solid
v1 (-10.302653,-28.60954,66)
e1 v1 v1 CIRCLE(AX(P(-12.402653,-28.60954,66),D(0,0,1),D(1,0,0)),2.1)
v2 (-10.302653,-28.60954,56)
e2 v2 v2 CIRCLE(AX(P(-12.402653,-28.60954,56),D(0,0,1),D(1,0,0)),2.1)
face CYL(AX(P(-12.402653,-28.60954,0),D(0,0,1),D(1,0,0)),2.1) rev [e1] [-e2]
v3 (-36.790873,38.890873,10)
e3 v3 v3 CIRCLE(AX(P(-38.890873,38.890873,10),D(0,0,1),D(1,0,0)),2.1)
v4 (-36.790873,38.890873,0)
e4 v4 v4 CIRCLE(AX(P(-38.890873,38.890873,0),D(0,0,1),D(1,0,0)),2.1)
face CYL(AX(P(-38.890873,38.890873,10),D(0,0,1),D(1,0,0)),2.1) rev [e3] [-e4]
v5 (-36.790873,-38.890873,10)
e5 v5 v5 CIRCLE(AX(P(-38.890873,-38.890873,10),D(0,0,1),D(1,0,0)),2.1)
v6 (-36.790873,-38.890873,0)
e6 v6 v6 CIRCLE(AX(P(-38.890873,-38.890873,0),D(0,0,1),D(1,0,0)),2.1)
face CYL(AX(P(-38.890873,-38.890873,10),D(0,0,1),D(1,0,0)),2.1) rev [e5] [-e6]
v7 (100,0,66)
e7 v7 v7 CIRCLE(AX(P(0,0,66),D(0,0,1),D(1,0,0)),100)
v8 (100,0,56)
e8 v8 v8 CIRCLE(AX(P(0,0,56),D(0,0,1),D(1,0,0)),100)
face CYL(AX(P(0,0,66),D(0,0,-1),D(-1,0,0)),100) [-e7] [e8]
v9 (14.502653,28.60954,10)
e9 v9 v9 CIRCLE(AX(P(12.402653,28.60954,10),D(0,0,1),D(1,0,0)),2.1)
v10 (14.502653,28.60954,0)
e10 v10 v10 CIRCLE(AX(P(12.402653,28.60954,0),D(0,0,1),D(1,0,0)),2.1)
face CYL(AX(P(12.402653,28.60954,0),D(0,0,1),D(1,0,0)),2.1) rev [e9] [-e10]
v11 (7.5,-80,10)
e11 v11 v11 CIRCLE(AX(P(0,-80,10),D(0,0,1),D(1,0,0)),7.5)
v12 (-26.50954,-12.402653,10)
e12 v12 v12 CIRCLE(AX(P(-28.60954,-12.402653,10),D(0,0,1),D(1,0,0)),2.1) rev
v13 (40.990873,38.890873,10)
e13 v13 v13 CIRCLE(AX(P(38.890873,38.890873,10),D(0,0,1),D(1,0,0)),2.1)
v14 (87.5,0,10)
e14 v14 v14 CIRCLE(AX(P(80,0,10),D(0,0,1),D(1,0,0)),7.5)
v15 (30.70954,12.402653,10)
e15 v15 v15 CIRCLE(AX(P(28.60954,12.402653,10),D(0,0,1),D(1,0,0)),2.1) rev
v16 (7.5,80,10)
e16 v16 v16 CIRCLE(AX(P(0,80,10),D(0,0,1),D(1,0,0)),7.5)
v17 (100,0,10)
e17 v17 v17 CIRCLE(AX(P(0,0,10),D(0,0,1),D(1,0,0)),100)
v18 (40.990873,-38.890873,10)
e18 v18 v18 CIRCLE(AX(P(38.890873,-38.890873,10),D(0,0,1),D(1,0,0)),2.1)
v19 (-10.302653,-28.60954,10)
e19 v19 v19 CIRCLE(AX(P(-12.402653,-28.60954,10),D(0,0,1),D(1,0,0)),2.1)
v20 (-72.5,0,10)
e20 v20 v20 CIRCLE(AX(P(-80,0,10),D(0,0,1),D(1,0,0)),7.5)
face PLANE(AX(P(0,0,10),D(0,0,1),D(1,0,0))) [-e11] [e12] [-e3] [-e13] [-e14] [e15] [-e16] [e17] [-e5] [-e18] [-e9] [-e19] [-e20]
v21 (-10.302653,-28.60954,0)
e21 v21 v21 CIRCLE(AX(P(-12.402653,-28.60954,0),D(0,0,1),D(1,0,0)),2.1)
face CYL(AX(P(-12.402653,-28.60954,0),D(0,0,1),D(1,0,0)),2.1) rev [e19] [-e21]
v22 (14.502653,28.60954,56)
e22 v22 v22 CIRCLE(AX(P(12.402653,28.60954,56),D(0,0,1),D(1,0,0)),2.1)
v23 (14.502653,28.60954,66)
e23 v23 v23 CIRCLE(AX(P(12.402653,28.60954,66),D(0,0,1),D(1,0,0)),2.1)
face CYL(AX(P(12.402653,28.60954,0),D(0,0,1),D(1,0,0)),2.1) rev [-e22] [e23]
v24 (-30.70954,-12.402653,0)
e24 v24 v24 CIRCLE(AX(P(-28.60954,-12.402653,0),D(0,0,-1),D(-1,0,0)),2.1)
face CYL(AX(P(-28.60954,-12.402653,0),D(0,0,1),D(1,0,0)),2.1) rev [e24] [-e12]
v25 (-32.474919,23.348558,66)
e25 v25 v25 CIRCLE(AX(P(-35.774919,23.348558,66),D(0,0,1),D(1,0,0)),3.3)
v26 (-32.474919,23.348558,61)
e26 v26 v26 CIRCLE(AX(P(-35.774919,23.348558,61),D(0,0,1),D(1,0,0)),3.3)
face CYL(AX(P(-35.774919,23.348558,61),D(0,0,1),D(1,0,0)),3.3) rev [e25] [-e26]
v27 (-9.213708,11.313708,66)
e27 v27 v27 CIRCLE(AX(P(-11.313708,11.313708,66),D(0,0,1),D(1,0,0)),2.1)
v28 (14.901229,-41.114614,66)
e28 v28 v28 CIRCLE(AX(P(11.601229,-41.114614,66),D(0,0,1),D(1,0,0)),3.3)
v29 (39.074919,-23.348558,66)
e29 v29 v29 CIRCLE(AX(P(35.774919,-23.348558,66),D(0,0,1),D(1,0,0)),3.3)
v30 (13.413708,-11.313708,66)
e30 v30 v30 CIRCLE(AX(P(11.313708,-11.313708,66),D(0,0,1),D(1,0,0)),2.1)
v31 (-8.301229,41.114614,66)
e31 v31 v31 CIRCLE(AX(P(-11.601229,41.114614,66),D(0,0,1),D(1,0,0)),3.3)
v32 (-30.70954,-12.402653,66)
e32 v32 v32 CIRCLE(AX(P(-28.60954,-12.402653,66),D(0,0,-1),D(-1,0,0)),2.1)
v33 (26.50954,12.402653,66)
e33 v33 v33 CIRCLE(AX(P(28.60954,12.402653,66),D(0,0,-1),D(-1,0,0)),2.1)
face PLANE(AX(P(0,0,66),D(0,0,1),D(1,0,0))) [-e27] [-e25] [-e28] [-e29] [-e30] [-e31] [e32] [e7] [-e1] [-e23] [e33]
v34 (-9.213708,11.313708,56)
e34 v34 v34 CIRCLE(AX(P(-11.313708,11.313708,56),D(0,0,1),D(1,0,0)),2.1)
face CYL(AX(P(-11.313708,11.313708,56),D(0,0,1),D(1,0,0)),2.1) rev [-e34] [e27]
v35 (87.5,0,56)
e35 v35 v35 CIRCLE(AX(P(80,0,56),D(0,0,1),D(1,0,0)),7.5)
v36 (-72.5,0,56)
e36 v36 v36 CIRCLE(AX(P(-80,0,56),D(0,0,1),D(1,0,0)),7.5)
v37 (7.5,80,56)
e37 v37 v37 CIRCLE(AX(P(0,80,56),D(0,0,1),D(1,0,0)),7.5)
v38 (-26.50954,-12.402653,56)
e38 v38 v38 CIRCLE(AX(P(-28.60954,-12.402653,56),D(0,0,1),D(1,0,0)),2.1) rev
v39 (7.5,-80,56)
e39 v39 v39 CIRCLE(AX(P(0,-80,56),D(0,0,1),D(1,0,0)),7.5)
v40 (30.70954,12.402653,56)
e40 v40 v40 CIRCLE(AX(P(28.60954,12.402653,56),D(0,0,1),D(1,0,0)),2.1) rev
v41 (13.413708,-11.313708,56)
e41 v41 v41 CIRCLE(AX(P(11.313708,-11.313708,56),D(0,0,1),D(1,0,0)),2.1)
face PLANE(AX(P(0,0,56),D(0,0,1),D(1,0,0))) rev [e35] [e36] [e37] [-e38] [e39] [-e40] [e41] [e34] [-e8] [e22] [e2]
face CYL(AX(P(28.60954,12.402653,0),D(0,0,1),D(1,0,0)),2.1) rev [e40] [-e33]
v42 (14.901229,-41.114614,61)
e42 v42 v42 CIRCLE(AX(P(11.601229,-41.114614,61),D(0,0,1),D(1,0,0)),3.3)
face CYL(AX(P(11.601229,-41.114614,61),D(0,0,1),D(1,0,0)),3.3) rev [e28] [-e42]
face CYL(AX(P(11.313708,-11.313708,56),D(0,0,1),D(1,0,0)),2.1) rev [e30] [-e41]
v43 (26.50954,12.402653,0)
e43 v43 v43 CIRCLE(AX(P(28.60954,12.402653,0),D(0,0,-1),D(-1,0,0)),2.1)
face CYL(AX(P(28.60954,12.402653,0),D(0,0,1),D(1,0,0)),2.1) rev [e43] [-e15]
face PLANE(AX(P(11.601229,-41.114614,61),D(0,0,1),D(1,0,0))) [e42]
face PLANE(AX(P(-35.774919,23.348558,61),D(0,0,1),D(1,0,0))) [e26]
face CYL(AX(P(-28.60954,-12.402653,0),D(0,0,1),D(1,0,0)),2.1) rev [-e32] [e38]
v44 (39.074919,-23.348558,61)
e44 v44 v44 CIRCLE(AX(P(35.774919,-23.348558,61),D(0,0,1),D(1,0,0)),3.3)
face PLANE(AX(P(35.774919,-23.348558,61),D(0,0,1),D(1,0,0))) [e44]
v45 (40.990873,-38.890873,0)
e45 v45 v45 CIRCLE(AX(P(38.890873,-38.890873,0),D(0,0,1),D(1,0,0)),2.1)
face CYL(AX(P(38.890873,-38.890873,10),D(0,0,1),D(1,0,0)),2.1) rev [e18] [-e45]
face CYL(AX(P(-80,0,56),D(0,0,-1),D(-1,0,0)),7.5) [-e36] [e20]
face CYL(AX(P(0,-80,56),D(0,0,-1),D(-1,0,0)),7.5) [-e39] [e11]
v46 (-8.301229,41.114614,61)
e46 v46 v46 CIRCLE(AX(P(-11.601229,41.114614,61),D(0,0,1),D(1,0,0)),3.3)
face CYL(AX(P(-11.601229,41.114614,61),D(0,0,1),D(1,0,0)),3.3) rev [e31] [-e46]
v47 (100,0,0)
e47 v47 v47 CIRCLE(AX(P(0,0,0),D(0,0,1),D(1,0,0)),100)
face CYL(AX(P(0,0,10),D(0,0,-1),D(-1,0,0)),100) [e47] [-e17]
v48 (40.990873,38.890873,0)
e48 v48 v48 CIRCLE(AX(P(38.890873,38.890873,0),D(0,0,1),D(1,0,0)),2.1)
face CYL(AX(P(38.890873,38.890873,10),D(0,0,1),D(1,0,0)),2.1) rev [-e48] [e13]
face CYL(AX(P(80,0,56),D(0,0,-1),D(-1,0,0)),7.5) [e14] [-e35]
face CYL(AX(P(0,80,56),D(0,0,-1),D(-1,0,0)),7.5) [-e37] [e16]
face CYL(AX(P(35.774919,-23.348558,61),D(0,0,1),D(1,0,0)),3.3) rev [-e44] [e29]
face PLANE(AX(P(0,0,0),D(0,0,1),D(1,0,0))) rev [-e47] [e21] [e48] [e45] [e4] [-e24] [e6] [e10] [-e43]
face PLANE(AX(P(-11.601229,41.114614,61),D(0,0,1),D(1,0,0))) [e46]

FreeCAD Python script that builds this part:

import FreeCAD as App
import Part
import Sketcher

V = App.Vector
Q = App.Units.Quantity

doc = App.newDocument("Part")
body = doc.addObject("PartDesign::Body", "Body")

sketch1 = doc.addObject("Sketcher::SketchObject", "Sketch")
body.addObject(sketch1)
sketch1.AttachmentSupport = (doc.XY_Plane, [""])
sketch1.MapMode = "FlatFace"
sketch1.addGeometry(Part.Circle(V(0, 0, 0), V(0, 0, 1), 100), False)
sketch1.addConstraint(Sketcher.Constraint("Coincident", 0, 3, -1, 1))
sketch1.addConstraint(Sketcher.Constraint("Diameter", 0, Q("200 mm")))
pad1 = doc.addObject("PartDesign::Pad", "Pad")
body.addObject(pad1)
pad1.Profile = sketch1
pad1.Length = 10

sketch2 = doc.addObject("Sketcher::SketchObject", "Sketch001")
body.addObject(sketch2)
sketch2.AttachmentSupport = (doc.XY_Plane, [""])
sketch2.MapMode = "FlatFace"
sketch2.AttachmentOffset = App.Placement(V(0, 0, 10), App.Rotation())
sketch2.addGeometry(Part.Circle(V(-80, 0, 0), V(0, 0, 1), 8), False)
sketch2.addGeometry(Part.Circle(V(0, 80, 0), V(0, 0, 1), 8), False)
sketch2.addGeometry(Part.Circle(V(80, 0, 0), V(0, 0, 1), 8), False)
sketch2.addGeometry(Part.Circle(V(0, -80, 0), V(0, 0, 1), 8), False)
sketch2.addConstraint(Sketcher.Constraint("Equal", 0, 1))
sketch2.addConstraint(Sketcher.Constraint("Equal", 1, 2))
sketch2.addConstraint(Sketcher.Constraint("Equal", 2, 3))
sketch2.addConstraint(Sketcher.Constraint("Symmetric", 0, 3, 2, 3, -1, 1))
sketch2.addConstraint(Sketcher.Constraint("Symmetric", 1, 3, 3, 3, -1, 1))
sketch2.addConstraint(Sketcher.Constraint("PointOnObject", 0, 3, -1))
sketch2.addConstraint(Sketcher.Constraint("PointOnObject", 1, 3, -2))
sketch2.addConstraint(Sketcher.Constraint("Diameter", 0, Q("15 mm")))
sketch2.addConstraint(Sketcher.Constraint("DistanceX", 0, 3, -1, 1, Q("80 mm")))
sketch2.addConstraint(Sketcher.Constraint("DistanceY", -1, 1, 1, 3, Q("80 mm")))
pad2 = doc.addObject("PartDesign::Pad", "Pad001")
body.addObject(pad2)
pad2.Profile = sketch2
pad2.Length = 46

sketch3 = doc.addObject("Sketcher::SketchObject", "Sketch002")
body.addObject(sketch3)
sketch3.AttachmentSupport = (doc.XY_Plane, [""])
sketch3.MapMode = "FlatFace"
sketch3.AttachmentOffset = App.Placement(V(0, 0, 56), App.Rotation())
sketch3.addGeometry(Part.Circle(V(0, 0, 0), V(0, 0, 1), 100), False)
sketch3.addConstraint(Sketcher.Constraint("Coincident", 0, 3, -1, 1))
sketch3.addConstraint(Sketcher.Constraint("Diameter", 0, Q("200 mm")))
pad3 = doc.addObject("PartDesign::Pad", "Pad002")
body.addObject(pad3)
pad3.Profile = sketch3
pad3.Length = 10

sketch4 = doc.addObject("Sketcher::SketchObject", "Sketch003")
body.addObject(sketch4)
sketch4.AttachmentSupport = (doc.XY_Plane, [""])
sketch4.MapMode = "FlatFace"
sketch4.AttachmentOffset = App.Placement(V(0, 0, 66), App.Rotation())
sketch4.addGeometry(Part.Circle(V(-11.3, 11.3, 0), V(0, 0, 1), 2.1), False)
sketch4.addGeometry(Part.Circle(V(11.3, -11.3, 0), V(0, 0, 1), 2.1), False)
sketch4.addConstraint(Sketcher.Constraint("Equal", 0, 1))
sketch4.addConstraint(Sketcher.Constraint("Symmetric", 0, 3, 1, 3, -1, 1))
sketch4.addConstraint(Sketcher.Constraint("Diameter", 0, Q("4.2 mm")))
sketch4.addConstraint(Sketcher.Constraint("DistanceX", 0, 3, -1, 1, Q("11.313708 mm")))
sketch4.addConstraint(Sketcher.Constraint("DistanceY", -1, 1, 0, 3, Q("11.313708 mm")))
pocket1 = doc.addObject("PartDesign::Pocket", "Pocket")
body.addObject(pocket1)
pocket1.Profile = sketch4
pocket1.Length = 10

sketch5 = doc.addObject("Sketcher::SketchObject", "Sketch004")
body.addObject(sketch5)
sketch5.AttachmentSupport = (doc.XY_Plane, [""])
sketch5.MapMode = "FlatFace"
sketch5.AttachmentOffset = App.Placement(V(0, 0, 66), App.Rotation())
sketch5.addGeometry(Part.Circle(V(12.4, 28.6, 0), V(0, 0, 1), 2.1), False)
sketch5.addGeometry(Part.Circle(V(28.6, 12.4, 0), V(0, 0, 1), 2.1), False)
sketch5.addGeometry(Part.Circle(V(-12.4, -28.6, 0), V(0, 0, 1), 2.1), False)
sketch5.addGeometry(Part.Circle(V(-28.6, -12.4, 0), V(0, 0, 1), 2.1), False)
sketch5.addConstraint(Sketcher.Constraint("Equal", 0, 1))
sketch5.addConstraint(Sketcher.Constraint("Equal", 1, 2))
sketch5.addConstraint(Sketcher.Constraint("Equal", 2, 3))
sketch5.addConstraint(Sketcher.Constraint("Symmetric", 0, 3, 2, 3, -1, 1))
sketch5.addConstraint(Sketcher.Constraint("Symmetric", 1, 3, 3, 3, -1, 1))
sketch5.addConstraint(Sketcher.Constraint("Diameter", 0, Q("4.2 mm")))
sketch5.addConstraint(Sketcher.Constraint("DistanceY", -1, 1, 0, 3, Q("28.60954 mm")))
sketch5.addConstraint(Sketcher.Constraint("DistanceX", -1, 1, 1, 3, Q("28.60954 mm")))
sketch5.addConstraint(Sketcher.Constraint("DistanceX", -1, 1, 0, 3, Q("12.402653 mm")))
sketch5.addConstraint(Sketcher.Constraint("DistanceY", -1, 1, 1, 3, Q("12.402653 mm")))
pocket2 = doc.addObject("PartDesign::Pocket", "Pocket001")
body.addObject(pocket2)
pocket2.Profile = sketch5
pocket2.Type = "ThroughAll"

sketch6 = doc.addObject("Sketcher::SketchObject", "Sketch005")
body.addObject(sketch6)
sketch6.AttachmentSupport = (doc.XY_Plane, [""])
sketch6.MapMode = "FlatFace"
sketch6.AttachmentOffset = App.Placement(V(0, 0, 66), App.Rotation())
sketch6.addGeometry(Part.Circle(V(-11.6, 41.1, 0), V(0, 0, 1), 3.3), False)
sketch6.addGeometry(Part.Circle(V(-35.8, 23.3, 0), V(0, 0, 1), 3.3), False)
sketch6.addGeometry(Part.Circle(V(11.6, -41.1, 0), V(0, 0, 1), 3.3), False)
sketch6.addGeometry(Part.Circle(V(35.8, -23.3, 0), V(0, 0, 1), 3.3), False)
sketch6.addConstraint(Sketcher.Constraint("Equal", 0, 1))
sketch6.addConstraint(Sketcher.Constraint("Equal", 1, 2))
sketch6.addConstraint(Sketcher.Constraint("Equal", 2, 3))
sketch6.addConstraint(Sketcher.Constraint("Symmetric", 0, 3, 2, 3, -1, 1))
sketch6.addConstraint(Sketcher.Constraint("Symmetric", 1, 3, 3, 3, -1, 1))
sketch6.addConstraint(Sketcher.Constraint("Diameter", 0, Q("6.6 mm")))
sketch6.addConstraint(Sketcher.Constraint("DistanceX", 0, 3, -1, 1, Q("11.601229 mm")))
sketch6.addConstraint(Sketcher.Constraint("DistanceX", 1, 3, -1, 1, Q("35.774919 mm")))
sketch6.addConstraint(Sketcher.Constraint("DistanceY", -1, 1, 1, 3, Q("23.348558 mm")))
sketch6.addConstraint(Sketcher.Constraint("DistanceY", -1, 1, 0, 3, Q("41.114614 mm")))
pocket3 = doc.addObject("PartDesign::Pocket", "Pocket002")
body.addObject(pocket3)
pocket3.Profile = sketch6
pocket3.Length = 5

sketch7 = doc.addObject("Sketcher::SketchObject", "Sketch006")
body.addObject(sketch7)
sketch7.AttachmentSupport = (doc.XY_Plane, [""])
sketch7.MapMode = "FlatFace"
sketch7.AttachmentOffset = App.Placement(V(0, 0, 10), App.Rotation())
sketch7.addGeometry(Part.Circle(V(-38.9, 38.9, 0), V(0, 0, 1), 2.1), False)
sketch7.addConstraint(Sketcher.Constraint("Diameter", 0, Q("4.2 mm")))
sketch7.addConstraint(Sketcher.Constraint("DistanceX", 0, 3, -1, 1, Q("38.890873 mm")))
sketch7.addConstraint(Sketcher.Constraint("DistanceY", -1, 1, 0, 3, Q("38.890873 mm")))
doc.recompute()
hole = doc.addObject("PartDesign::Hole", "Hole")
body.addObject(hole)
hole.Profile = sketch7
hole.ThreadType = "None"
hole.Diameter = 4.2
hole.DepthType = "Dimension"
hole.Depth = 10
hole.DrillPoint = "Flat"
doc.recompute()

polarpattern = doc.addObject("PartDesign::PolarPattern", "PolarPattern")
body.addObject(polarpattern)
polarpattern.Originals = [hole]
polarpattern.Axis = (doc.Z_Axis, [""])
polarpattern.Angle = 360
polarpattern.Occurrences = 4
body.Tip = polarpattern

doc.recompute()
